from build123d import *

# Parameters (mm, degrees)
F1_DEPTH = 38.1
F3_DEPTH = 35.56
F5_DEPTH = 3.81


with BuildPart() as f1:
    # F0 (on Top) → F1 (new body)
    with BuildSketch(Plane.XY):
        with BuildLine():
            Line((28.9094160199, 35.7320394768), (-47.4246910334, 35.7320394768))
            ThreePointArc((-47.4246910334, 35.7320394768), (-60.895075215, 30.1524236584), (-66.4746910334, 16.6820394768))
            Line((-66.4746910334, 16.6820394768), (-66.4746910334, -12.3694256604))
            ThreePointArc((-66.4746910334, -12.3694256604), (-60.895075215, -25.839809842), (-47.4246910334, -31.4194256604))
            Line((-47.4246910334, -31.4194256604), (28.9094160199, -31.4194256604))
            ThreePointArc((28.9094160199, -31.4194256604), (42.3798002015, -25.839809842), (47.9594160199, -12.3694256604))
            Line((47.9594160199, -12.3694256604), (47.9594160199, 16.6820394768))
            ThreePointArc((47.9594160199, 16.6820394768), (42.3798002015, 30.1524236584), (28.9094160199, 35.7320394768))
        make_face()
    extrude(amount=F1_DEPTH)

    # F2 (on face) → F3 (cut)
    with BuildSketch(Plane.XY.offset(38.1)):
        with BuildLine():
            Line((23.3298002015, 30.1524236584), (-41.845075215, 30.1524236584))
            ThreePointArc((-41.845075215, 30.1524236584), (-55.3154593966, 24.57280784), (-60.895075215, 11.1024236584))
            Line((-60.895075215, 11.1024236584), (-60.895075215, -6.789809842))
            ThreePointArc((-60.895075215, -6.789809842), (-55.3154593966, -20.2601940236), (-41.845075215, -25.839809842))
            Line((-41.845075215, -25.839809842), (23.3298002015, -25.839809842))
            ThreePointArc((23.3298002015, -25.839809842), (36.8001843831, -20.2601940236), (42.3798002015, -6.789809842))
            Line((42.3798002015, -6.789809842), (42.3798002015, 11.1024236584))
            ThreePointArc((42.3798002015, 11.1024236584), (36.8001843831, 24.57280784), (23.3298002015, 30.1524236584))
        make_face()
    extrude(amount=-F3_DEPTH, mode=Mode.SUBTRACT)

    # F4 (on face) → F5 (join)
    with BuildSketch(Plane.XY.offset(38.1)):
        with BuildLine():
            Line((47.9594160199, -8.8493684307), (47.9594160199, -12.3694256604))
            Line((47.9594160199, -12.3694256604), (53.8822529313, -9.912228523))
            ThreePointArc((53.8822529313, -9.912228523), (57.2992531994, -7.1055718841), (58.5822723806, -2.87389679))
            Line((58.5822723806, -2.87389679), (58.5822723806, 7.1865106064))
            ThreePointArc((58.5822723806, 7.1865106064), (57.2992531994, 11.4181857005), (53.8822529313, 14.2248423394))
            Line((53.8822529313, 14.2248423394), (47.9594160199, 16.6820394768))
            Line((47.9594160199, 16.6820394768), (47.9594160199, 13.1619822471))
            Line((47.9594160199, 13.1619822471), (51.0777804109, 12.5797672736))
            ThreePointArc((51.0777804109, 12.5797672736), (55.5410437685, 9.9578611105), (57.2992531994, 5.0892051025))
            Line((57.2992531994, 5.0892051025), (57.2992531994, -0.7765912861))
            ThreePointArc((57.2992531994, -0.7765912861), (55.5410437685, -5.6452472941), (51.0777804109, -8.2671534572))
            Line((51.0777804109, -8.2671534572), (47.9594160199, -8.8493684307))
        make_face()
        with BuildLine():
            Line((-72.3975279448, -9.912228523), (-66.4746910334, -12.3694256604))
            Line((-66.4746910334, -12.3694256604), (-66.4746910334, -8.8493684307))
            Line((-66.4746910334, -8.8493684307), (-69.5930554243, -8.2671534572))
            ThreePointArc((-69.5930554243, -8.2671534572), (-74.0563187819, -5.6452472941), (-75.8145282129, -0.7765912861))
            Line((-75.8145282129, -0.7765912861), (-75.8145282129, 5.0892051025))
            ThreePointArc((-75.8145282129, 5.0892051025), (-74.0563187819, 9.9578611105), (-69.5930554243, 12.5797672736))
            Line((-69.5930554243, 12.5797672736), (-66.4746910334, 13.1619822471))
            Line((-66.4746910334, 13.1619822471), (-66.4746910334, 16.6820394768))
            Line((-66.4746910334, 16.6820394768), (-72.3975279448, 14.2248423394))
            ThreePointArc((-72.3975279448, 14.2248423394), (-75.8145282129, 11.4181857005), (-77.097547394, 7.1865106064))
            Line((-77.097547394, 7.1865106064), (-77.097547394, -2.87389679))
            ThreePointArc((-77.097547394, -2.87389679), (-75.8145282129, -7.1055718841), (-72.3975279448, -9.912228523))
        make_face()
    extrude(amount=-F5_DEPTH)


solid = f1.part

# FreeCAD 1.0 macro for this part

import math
import FreeCAD as App
import Part
import Sketcher
Q = App.Units.Quantity

doc = App.newDocument("Part")
body = doc.addObject("PartDesign::Body", "Body")

sketch1 = body.newObject("Sketcher::SketchObject", "Sketch")
sketch1.AttachmentSupport = (doc.getObject("XY_Plane"), [""])
sketch1.MapMode = "FlatFace"
sketch1.addGeometry(Part.LineSegment(App.Vector(28.909416, 35.732039, 0), App.Vector(-47.424691, 35.732039, 0)), False)
sketch1.addGeometry(Part.ArcOfCircle(Part.Circle(App.Vector(-47.424691, 16.682039, 0), App.Vector(0, 0, 1), 19.05), math.radians(90), math.radians(180)), False)
sketch1.addGeometry(Part.LineSegment(App.Vector(-66.474691, 16.682039, 0), App.Vector(-66.474691, -12.369426, 0)), False)
sketch1.addGeometry(Part.ArcOfCircle(Part.Circle(App.Vector(-47.424691, -12.369426, 0), App.Vector(0, 0, 1), 19.05), math.radians(180), math.radians(270)), False)
sketch1.addGeometry(Part.LineSegment(App.Vector(-47.424691, -31.419426, 0), App.Vector(28.909416, -31.419426, 0)), False)
sketch1.addGeometry(Part.ArcOfCircle(Part.Circle(App.Vector(28.909416, -12.369426, 0), App.Vector(0, 0, 1), 19.05), math.radians(-90), math.radians(0)), False)
sketch1.addGeometry(Part.LineSegment(App.Vector(47.959416, -12.369426, 0), App.Vector(47.959416, 16.682039, 0)), False)
sketch1.addGeometry(Part.ArcOfCircle(Part.Circle(App.Vector(28.909416, 16.682039, 0), App.Vector(0, 0, 1), 19.05), math.radians(0), math.radians(90)), False)
sketch1.addConstraint(Sketcher.Constraint("Tangent", 0, 2, 1, 1))
sketch1.addConstraint(Sketcher.Constraint("Tangent", 1, 2, 2, 1))
sketch1.addConstraint(Sketcher.Constraint("Tangent", 2, 2, 3, 1))
sketch1.addConstraint(Sketcher.Constraint("Tangent", 3, 2, 4, 1))
sketch1.addConstraint(Sketcher.Constraint("Tangent", 4, 2, 5, 1))
sketch1.addConstraint(Sketcher.Constraint("Tangent", 5, 2, 6, 1))
sketch1.addConstraint(Sketcher.Constraint("Tangent", 6, 2, 7, 1))
sketch1.addConstraint(Sketcher.Constraint("Tangent", 7, 2, 0, 1))
sketch1.addConstraint(Sketcher.Constraint("Horizontal", 0))
sketch1.addConstraint(Sketcher.Constraint("Vertical", 2))
sketch1.addConstraint(Sketcher.Constraint("Horizontal", 4))
sketch1.addConstraint(Sketcher.Constraint("Vertical", 6))
sketch1.addConstraint(Sketcher.Constraint("Equal", 1, 3))
sketch1.addConstraint(Sketcher.Constraint("Equal", 3, 5))
sketch1.addConstraint(Sketcher.Constraint("Equal", 5, 7))
sketch1.addConstraint(Sketcher.Constraint("Radius", 1, Q("0.75 in")))
sketch1.addConstraint(Sketcher.Constraint("DistanceX", 0, 2, 0, 1, 76.334107))
sketch1.addConstraint(Sketcher.Constraint("DistanceY", 2, 2, 2, 1, 29.051465))
sketch1.addConstraint(Sketcher.Constraint("DistanceX", 1, 3, -1, 1, 47.424691))
sketch1.addConstraint(Sketcher.Constraint("DistanceY", -1, 1, 1, 3, 16.682039))
pad1 = body.newObject("PartDesign::Pad", "Pad")
pad1.Profile = sketch1
pad1.Length = Q("1.5 in")

sketch2 = body.newObject("Sketcher::SketchObject", "Sketch001")
sketch2.AttachmentSupport = (doc.getObject("XY_Plane"), [""])
sketch2.MapMode = "FlatFace"
sketch2.AttachmentOffset = App.Placement(App.Vector(0, 0, 1.5 * 25.4), App.Rotation())
sketch2.addGeometry(Part.LineSegment(App.Vector(23.3298, 30.152424, 0), App.Vector(-41.845075, 30.152424, 0)), False)
sketch2.addGeometry(Part.ArcOfCircle(Part.Circle(App.Vector(-41.845075, 11.102424, 0), App.Vector(0, 0, 1), 19.05), math.radians(90), math.radians(180)), False)
sketch2.addGeometry(Part.LineSegment(App.Vector(-60.895075, 11.102424, 0), App.Vector(-60.895075, -6.78981, 0)), False)
sketch2.addGeometry(Part.ArcOfCircle(Part.Circle(App.Vector(-41.845075, -6.78981, 0), App.Vector(0, 0, 1), 19.05), math.radians(180), math.radians(270)), False)
sketch2.addGeometry(Part.LineSegment(App.Vector(-41.845075, -25.83981, 0), App.Vector(23.3298, -25.83981, 0)), False)
sketch2.addGeometry(Part.ArcOfCircle(Part.Circle(App.Vector(23.3298, -6.78981, 0), App.Vector(0, 0, 1), 19.05), math.radians(-90), math.radians(0)), False)
sketch2.addGeometry(Part.LineSegment(App.Vector(42.3798, -6.78981, 0), App.Vector(42.3798, 11.102424, 0)), False)
sketch2.addGeometry(Part.ArcOfCircle(Part.Circle(App.Vector(23.3298, 11.102424, 0), App.Vector(0, 0, 1), 19.05), math.radians(0), math.radians(90)), False)
sketch2.addConstraint(Sketcher.Constraint("Tangent", 0, 2, 1, 1))
sketch2.addConstraint(Sketcher.Constraint("Tangent", 1, 2, 2, 1))
sketch2.addConstraint(Sketcher.Constraint("Tangent", 2, 2, 3, 1))
sketch2.addConstraint(Sketcher.Constraint("Tangent", 3, 2, 4, 1))
sketch2.addConstraint(Sketcher.Constraint("Tangent", 4, 2, 5, 1))
sketch2.addConstraint(Sketcher.Constraint("Tangent", 5, 2, 6, 1))
sketch2.addConstraint(Sketcher.Constraint("Tangent", 6, 2, 7, 1))
sketch2.addConstraint(Sketcher.Constraint("Tangent", 7, 2, 0, 1))
sketch2.addConstraint(Sketcher.Constraint("Horizontal", 0))
sketch2.addConstraint(Sketcher.Constraint("Vertical", 2))
sketch2.addConstraint(Sketcher.Constraint("Horizontal", 4))
sketch2.addConstraint(Sketcher.Constraint("Vertical", 6))
sketch2.addConstraint(Sketcher.Constraint("Equal", 1, 3))
sketch2.addConstraint(Sketcher.Constraint("Equal", 3, 5))
sketch2.addConstraint(Sketcher.Constraint("Equal", 5, 7))
sketch2.addConstraint(Sketcher.Constraint("Radius", 1, Q("0.75 in")))
sketch2.addConstraint(Sketcher.Constraint("DistanceX", -1, 1, 5, 3, 23.3298))
sketch2.addConstraint(Sketcher.Constraint("DistanceX", 0, 2, 0, 1, 65.174875))
sketch2.addConstraint(Sketcher.Constraint("DistanceY", 2, 2, 2, 1, 17.892233))
sketch2.addConstraint(Sketcher.Constraint("DistanceY", 3, 3, -1, 1, 6.78981))
pocket1 = body.newObject("PartDesign::Pocket", "Pocket")
pocket1.Profile = sketch2
pocket1.Length = Q("1.4 in")

sketch3 = body.newObject("Sketcher::SketchObject", "Sketch002")
sketch3.AttachmentSupport = (doc.getObject("XY_Plane"), [""])
sketch3.MapMode = "FlatFace"
sketch3.AttachmentOffset = App.Placement(App.Vector(0, 0, 1.5 * 25.4), App.Rotation())
sketch3.addGeometry(Part.LineSegment(App.Vector(47.959416, -8.849368, 0), App.Vector(47.959416, -12.369426, 0)), False)
sketch3.addGeometry(Part.LineSegment(App.Vector(47.959416, -12.369426, 0), App.Vector(53.882253, -9.912229, 0)), False)
sketch3.addGeometry(Part.ArcOfCircle(Part.Circle(App.Vector(50.962272, -2.873897, 0), App.Vector(0, 0, 1), 7.62), math.radians(-67.467989), math.radians(0)), False)
sketch3.addGeometry(Part.LineSegment(App.Vector(58.582272, -2.873897, 0), App.Vector(58.582272, 7.186511, 0)), False)
sketch3.addGeometry(Part.ArcOfCircle(Part.Circle(App.Vector(50.962272, 7.186511, 0), App.Vector(0, 0, 1), 7.62), math.radians(0), math.radians(67.467989)), False)
sketch3.addGeometry(Part.LineSegment(App.Vector(53.882253, 14.224842, 0), App.Vector(47.959416, 16.682039, 0)), False)
sketch3.addGeometry(Part.LineSegment(App.Vector(47.959416, 16.682039, 0), App.Vector(47.959416, 13.161982, 0)), False)
sketch3.addGeometry(Part.LineSegment(App.Vector(47.959416, 13.161982, 0), App.Vector(51.07778, 12.579767, 0)), False)
sketch3.addGeometry(Part.ArcOfCircle(Part.Circle(App.Vector(49.679253, 5.089205, 0), App.Vector(0, 0, 1), 7.62), math.radians(0), math.radians(79.424341)), False)
sketch3.addGeometry(Part.LineSegment(App.Vector(57.299253, 5.089205, 0), App.Vector(57.299253, -0.776591, 0)), False)
sketch3.addGeometry(Part.ArcOfCircle(Part.Circle(App.Vector(49.679253, -0.776591, 0), App.Vector(0, 0, 1), 7.62), math.radians(-79.424341), math.radians(0)), False)
sketch3.addGeometry(Part.LineSegment(App.Vector(51.07778, -8.267153, 0), App.Vector(47.959416, -8.849368, 0)), False)
sketch3.addGeometry(Part.LineSegment(App.Vector(-72.397528, -9.912229, 0), App.Vector(-66.474691, -12.369426, 0)), False)
sketch3.addGeometry(Part.LineSegment(App.Vector(-66.474691, -12.369426, 0), App.Vector(-66.474691, -8.849368, 0)), False)
sketch3.addGeometry(Part.LineSegment(App.Vector(-66.474691, -8.849368, 0), App.Vector(-69.593055, -8.267153, 0)), False)
sketch3.addGeometry(Part.ArcOfCircle(Part.Circle(App.Vector(-68.194528, -0.776591, 0), App.Vector(0, 0, 1), 7.62), math.radians(180), math.radians(259.424341)), False)
sketch3.addGeometry(Part.LineSegment(App.Vector(-75.814528, -0.776591, 0), App.Vector(-75.814528, 5.089205, 0)), False)
sketch3.addGeometry(Part.ArcOfCircle(Part.Circle(App.Vector(-68.194528, 5.089205, 0), App.Vector(0, 0, 1), 7.62), math.radians(100.575659), math.radians(180)), False)
sketch3.addGeometry(Part.LineSegment(App.Vector(-69.593055, 12.579767, 0), App.Vector(-66.474691, 13.161982, 0)), False)
sketch3.addGeometry(Part.LineSegment(App.Vector(-66.474691, 13.161982, 0), App.Vector(-66.474691, 16.682039, 0)), False)
sketch3.addGeometry(Part.LineSegment(App.Vector(-66.474691, 16.682039, 0), App.Vector(-72.397528, 14.224842, 0)), False)
sketch3.addGeometry(Part.ArcOfCircle(Part.Circle(App.Vector(-69.477547, 7.186511, 0), App.Vector(0, 0, 1), 7.62), math.radians(112.532011), math.radians(180)), False)
sketch3.addGeometry(Part.LineSegment(App.Vector(-77.097547, 7.186511, 0), App.Vector(-77.097547, -2.873897, 0)), False)
sketch3.addGeometry(Part.ArcOfCircle(Part.Circle(App.Vector(-69.477547, -2.873897, 0), App.Vector(0, 0, 1), 7.62), math.radians(180), math.radians(247.467989)), False)
sketch3.addConstraint(Sketcher.Constraint("Coincident", 0, 2, 1, 1))
sketch3.addConstraint(Sketcher.Constraint("Tangent", 1, 2, 2, 1))
sketch3.addConstraint(Sketcher.Constraint("Tangent", 2, 2, 3, 1))
sketch3.addConstraint(Sketcher.Constraint("Tangent", 3, 2, 4, 1))
sketch3.addConstraint(Sketcher.Constraint("Tangent", 4, 2, 5, 1))
sketch3.addConstraint(Sketcher.Constraint("Coincident", 5, 2, 6, 1))
sketch3.addConstraint(Sketcher.Constraint("Coincident", 6, 2, 7, 1))
sketch3.addConstraint(Sketcher.Constraint("Tangent", 7, 2, 8, 2))
sketch3.addConstraint(Sketcher.Constraint("Tangent", 8, 1, 9, 1))
sketch3.addConstraint(Sketcher.Constraint("Tangent", 9, 2, 10, 2))
sketch3.addConstraint(Sketcher.Constraint("Tangent", 10, 1, 11, 1))
sketch3.addConstraint(Sketcher.Constraint("Coincident", 11, 2, 0, 1))
sketch3.addConstraint(Sketcher.Constraint("Coincident", 12, 2, 13, 1))
sketch3.addConstraint(Sketcher.Constraint("Coincident", 13, 2, 14, 1))
sketch3.addConstraint(Sketcher.Constraint("Tangent", 14, 2, 15, 2))
sketch3.addConstraint(Sketcher.Constraint("Tangent", 15, 1, 16, 1))
sketch3.addConstraint(Sketcher.Constraint("Tangent", 16, 2, 17, 2))
sketch3.addConstraint(Sketcher.Constraint("Tangent", 17, 1, 18, 1))
sketch3.addConstraint(Sketcher.Constraint("Coincident", 18, 2, 19, 1))
sketch3.addConstraint(Sketcher.Constraint("Coincident", 19, 2, 20, 1))
sketch3.addConstraint(Sketcher.Constraint("Tangent", 20, 2, 21, 1))
sketch3.addConstraint(Sketcher.Constraint("Tangent", 21, 2, 22, 1))
sketch3.addConstraint(Sketcher.Constraint("Tangent", 22, 2, 23, 1))
sketch3.addConstraint(Sketcher.Constraint("Tangent", 23, 2, 12, 1))
sketch3.addConstraint(Sketcher.Constraint("Vertical", 0))
sketch3.addConstraint(Sketcher.Constraint("Vertical", 3))
sketch3.addConstraint(Sketcher.Constraint("Vertical", 6))
sketch3.addConstraint(Sketcher.Constraint("Vertical", 9))
sketch3.addConstraint(Sketcher.Constraint("Vertical", 13))
sketch3.addConstraint(Sketcher.Constraint("Vertical", 16))
sketch3.addConstraint(Sketcher.Constraint("Vertical", 19))
sketch3.addConstraint(Sketcher.Constraint("Vertical", 22))
sketch3.addConstraint(Sketcher.Constraint("Equal", 2, 4))
sketch3.addConstraint(Sketcher.Constraint("Equal", 4, 8))
sketch3.addConstraint(Sketcher.Constraint("Equal", 8, 10))
sketch3.addConstraint(Sketcher.Constraint("Equal", 10, 15))
sketch3.addConstraint(Sketcher.Constraint("Equal", 15, 17))
sketch3.addConstraint(Sketcher.Constraint("Equal", 17, 21))
sketch3.addConstraint(Sketcher.Constraint("Equal", 21, 23))
sketch3.addConstraint(Sketcher.Constraint("Parallel", 5, 12))
sketch3.addConstraint(Sketcher.Constraint("Parallel", 7, 14))
sketch3.addConstraint(Sketcher.Constraint("Parallel", 11, 18))
sketch3.addConstraint(Sketcher.Constraint("Parallel", 1, 20))
sketch3.addConstraint(Sketcher.Constraint("Horizontal", 10, 3, 15, 3))
sketch3.addConstraint(Sketcher.Constraint("Horizontal", 8, 3, 17, 3))
sketch3.addConstraint(Sketcher.Constraint("Horizontal", 4, 3, 21, 3))
sketch3.addConstraint(Sketcher.Constraint("Horizontal", 2, 3, 23, 3))
sketch3.addConstraint(Sketcher.Constraint("Horizontal", 0, 2, 12, 2))
sketch3.addConstraint(Sketcher.Constraint("Horizontal", 11, 2, 13, 2))
sketch3.addConstraint(Sketcher.Constraint("Horizontal", 10, 1, 14, 2))
sketch3.addConstraint(Sketcher.Constraint("Horizontal", 6, 2, 18, 2))
sketch3.addConstraint(Sketcher.Constraint("Horizontal", 5, 2, 19, 2))
sketch3.addConstraint(Sketcher.Constraint("Vertical", 0, 2, 5, 2))
sketch3.addConstraint(Sketcher.Constraint("Equal", 0, 6))
sketch3.addConstraint(Sketcher.Constraint("Radius", 2, Q("0.3 in")))
sketch3.addConstraint(Sketcher.Constraint("DistanceX", 15, 3, 10, 3, Q("4.6407001 in")))
sketch3.addConstraint(Sketcher.Constraint("DistanceY", 2, 3, 8, 3, 7.963102))
sketch3.addConstraint(Sketcher.Constraint("DistanceX", 15, 3, 2, 3, 119.156801))
sketch3.addConstraint(Sketcher.Constraint("DistanceX", 10, 3, 1, 2, 4.203))
sketch3.addConstraint(Sketcher.Constraint("Distance", 7, 3.17225))
sketch3.addConstraint(Sketcher.Constraint("DistanceY", 0, 2, 0, 1, 3.520057))
sketch3.addConstraint(Sketcher.Constraint("DistanceY", 3, 1, 3, 2, 10.060407))
sketch3.addConstraint(Sketcher.Constraint("DistanceY", -1, 1, 4, 3, 7.186511))
sketch3.addConstraint(Sketcher.Constraint("DistanceX", 15, 3, -1, 1, 68.194528))
pad2 = body.newObject("PartDesign::Pad", "Pad001")
pad2.Profile = sketch3
pad2.Length = Q("0.15 in")
pad2.Reversed = True

doc.recompute()
